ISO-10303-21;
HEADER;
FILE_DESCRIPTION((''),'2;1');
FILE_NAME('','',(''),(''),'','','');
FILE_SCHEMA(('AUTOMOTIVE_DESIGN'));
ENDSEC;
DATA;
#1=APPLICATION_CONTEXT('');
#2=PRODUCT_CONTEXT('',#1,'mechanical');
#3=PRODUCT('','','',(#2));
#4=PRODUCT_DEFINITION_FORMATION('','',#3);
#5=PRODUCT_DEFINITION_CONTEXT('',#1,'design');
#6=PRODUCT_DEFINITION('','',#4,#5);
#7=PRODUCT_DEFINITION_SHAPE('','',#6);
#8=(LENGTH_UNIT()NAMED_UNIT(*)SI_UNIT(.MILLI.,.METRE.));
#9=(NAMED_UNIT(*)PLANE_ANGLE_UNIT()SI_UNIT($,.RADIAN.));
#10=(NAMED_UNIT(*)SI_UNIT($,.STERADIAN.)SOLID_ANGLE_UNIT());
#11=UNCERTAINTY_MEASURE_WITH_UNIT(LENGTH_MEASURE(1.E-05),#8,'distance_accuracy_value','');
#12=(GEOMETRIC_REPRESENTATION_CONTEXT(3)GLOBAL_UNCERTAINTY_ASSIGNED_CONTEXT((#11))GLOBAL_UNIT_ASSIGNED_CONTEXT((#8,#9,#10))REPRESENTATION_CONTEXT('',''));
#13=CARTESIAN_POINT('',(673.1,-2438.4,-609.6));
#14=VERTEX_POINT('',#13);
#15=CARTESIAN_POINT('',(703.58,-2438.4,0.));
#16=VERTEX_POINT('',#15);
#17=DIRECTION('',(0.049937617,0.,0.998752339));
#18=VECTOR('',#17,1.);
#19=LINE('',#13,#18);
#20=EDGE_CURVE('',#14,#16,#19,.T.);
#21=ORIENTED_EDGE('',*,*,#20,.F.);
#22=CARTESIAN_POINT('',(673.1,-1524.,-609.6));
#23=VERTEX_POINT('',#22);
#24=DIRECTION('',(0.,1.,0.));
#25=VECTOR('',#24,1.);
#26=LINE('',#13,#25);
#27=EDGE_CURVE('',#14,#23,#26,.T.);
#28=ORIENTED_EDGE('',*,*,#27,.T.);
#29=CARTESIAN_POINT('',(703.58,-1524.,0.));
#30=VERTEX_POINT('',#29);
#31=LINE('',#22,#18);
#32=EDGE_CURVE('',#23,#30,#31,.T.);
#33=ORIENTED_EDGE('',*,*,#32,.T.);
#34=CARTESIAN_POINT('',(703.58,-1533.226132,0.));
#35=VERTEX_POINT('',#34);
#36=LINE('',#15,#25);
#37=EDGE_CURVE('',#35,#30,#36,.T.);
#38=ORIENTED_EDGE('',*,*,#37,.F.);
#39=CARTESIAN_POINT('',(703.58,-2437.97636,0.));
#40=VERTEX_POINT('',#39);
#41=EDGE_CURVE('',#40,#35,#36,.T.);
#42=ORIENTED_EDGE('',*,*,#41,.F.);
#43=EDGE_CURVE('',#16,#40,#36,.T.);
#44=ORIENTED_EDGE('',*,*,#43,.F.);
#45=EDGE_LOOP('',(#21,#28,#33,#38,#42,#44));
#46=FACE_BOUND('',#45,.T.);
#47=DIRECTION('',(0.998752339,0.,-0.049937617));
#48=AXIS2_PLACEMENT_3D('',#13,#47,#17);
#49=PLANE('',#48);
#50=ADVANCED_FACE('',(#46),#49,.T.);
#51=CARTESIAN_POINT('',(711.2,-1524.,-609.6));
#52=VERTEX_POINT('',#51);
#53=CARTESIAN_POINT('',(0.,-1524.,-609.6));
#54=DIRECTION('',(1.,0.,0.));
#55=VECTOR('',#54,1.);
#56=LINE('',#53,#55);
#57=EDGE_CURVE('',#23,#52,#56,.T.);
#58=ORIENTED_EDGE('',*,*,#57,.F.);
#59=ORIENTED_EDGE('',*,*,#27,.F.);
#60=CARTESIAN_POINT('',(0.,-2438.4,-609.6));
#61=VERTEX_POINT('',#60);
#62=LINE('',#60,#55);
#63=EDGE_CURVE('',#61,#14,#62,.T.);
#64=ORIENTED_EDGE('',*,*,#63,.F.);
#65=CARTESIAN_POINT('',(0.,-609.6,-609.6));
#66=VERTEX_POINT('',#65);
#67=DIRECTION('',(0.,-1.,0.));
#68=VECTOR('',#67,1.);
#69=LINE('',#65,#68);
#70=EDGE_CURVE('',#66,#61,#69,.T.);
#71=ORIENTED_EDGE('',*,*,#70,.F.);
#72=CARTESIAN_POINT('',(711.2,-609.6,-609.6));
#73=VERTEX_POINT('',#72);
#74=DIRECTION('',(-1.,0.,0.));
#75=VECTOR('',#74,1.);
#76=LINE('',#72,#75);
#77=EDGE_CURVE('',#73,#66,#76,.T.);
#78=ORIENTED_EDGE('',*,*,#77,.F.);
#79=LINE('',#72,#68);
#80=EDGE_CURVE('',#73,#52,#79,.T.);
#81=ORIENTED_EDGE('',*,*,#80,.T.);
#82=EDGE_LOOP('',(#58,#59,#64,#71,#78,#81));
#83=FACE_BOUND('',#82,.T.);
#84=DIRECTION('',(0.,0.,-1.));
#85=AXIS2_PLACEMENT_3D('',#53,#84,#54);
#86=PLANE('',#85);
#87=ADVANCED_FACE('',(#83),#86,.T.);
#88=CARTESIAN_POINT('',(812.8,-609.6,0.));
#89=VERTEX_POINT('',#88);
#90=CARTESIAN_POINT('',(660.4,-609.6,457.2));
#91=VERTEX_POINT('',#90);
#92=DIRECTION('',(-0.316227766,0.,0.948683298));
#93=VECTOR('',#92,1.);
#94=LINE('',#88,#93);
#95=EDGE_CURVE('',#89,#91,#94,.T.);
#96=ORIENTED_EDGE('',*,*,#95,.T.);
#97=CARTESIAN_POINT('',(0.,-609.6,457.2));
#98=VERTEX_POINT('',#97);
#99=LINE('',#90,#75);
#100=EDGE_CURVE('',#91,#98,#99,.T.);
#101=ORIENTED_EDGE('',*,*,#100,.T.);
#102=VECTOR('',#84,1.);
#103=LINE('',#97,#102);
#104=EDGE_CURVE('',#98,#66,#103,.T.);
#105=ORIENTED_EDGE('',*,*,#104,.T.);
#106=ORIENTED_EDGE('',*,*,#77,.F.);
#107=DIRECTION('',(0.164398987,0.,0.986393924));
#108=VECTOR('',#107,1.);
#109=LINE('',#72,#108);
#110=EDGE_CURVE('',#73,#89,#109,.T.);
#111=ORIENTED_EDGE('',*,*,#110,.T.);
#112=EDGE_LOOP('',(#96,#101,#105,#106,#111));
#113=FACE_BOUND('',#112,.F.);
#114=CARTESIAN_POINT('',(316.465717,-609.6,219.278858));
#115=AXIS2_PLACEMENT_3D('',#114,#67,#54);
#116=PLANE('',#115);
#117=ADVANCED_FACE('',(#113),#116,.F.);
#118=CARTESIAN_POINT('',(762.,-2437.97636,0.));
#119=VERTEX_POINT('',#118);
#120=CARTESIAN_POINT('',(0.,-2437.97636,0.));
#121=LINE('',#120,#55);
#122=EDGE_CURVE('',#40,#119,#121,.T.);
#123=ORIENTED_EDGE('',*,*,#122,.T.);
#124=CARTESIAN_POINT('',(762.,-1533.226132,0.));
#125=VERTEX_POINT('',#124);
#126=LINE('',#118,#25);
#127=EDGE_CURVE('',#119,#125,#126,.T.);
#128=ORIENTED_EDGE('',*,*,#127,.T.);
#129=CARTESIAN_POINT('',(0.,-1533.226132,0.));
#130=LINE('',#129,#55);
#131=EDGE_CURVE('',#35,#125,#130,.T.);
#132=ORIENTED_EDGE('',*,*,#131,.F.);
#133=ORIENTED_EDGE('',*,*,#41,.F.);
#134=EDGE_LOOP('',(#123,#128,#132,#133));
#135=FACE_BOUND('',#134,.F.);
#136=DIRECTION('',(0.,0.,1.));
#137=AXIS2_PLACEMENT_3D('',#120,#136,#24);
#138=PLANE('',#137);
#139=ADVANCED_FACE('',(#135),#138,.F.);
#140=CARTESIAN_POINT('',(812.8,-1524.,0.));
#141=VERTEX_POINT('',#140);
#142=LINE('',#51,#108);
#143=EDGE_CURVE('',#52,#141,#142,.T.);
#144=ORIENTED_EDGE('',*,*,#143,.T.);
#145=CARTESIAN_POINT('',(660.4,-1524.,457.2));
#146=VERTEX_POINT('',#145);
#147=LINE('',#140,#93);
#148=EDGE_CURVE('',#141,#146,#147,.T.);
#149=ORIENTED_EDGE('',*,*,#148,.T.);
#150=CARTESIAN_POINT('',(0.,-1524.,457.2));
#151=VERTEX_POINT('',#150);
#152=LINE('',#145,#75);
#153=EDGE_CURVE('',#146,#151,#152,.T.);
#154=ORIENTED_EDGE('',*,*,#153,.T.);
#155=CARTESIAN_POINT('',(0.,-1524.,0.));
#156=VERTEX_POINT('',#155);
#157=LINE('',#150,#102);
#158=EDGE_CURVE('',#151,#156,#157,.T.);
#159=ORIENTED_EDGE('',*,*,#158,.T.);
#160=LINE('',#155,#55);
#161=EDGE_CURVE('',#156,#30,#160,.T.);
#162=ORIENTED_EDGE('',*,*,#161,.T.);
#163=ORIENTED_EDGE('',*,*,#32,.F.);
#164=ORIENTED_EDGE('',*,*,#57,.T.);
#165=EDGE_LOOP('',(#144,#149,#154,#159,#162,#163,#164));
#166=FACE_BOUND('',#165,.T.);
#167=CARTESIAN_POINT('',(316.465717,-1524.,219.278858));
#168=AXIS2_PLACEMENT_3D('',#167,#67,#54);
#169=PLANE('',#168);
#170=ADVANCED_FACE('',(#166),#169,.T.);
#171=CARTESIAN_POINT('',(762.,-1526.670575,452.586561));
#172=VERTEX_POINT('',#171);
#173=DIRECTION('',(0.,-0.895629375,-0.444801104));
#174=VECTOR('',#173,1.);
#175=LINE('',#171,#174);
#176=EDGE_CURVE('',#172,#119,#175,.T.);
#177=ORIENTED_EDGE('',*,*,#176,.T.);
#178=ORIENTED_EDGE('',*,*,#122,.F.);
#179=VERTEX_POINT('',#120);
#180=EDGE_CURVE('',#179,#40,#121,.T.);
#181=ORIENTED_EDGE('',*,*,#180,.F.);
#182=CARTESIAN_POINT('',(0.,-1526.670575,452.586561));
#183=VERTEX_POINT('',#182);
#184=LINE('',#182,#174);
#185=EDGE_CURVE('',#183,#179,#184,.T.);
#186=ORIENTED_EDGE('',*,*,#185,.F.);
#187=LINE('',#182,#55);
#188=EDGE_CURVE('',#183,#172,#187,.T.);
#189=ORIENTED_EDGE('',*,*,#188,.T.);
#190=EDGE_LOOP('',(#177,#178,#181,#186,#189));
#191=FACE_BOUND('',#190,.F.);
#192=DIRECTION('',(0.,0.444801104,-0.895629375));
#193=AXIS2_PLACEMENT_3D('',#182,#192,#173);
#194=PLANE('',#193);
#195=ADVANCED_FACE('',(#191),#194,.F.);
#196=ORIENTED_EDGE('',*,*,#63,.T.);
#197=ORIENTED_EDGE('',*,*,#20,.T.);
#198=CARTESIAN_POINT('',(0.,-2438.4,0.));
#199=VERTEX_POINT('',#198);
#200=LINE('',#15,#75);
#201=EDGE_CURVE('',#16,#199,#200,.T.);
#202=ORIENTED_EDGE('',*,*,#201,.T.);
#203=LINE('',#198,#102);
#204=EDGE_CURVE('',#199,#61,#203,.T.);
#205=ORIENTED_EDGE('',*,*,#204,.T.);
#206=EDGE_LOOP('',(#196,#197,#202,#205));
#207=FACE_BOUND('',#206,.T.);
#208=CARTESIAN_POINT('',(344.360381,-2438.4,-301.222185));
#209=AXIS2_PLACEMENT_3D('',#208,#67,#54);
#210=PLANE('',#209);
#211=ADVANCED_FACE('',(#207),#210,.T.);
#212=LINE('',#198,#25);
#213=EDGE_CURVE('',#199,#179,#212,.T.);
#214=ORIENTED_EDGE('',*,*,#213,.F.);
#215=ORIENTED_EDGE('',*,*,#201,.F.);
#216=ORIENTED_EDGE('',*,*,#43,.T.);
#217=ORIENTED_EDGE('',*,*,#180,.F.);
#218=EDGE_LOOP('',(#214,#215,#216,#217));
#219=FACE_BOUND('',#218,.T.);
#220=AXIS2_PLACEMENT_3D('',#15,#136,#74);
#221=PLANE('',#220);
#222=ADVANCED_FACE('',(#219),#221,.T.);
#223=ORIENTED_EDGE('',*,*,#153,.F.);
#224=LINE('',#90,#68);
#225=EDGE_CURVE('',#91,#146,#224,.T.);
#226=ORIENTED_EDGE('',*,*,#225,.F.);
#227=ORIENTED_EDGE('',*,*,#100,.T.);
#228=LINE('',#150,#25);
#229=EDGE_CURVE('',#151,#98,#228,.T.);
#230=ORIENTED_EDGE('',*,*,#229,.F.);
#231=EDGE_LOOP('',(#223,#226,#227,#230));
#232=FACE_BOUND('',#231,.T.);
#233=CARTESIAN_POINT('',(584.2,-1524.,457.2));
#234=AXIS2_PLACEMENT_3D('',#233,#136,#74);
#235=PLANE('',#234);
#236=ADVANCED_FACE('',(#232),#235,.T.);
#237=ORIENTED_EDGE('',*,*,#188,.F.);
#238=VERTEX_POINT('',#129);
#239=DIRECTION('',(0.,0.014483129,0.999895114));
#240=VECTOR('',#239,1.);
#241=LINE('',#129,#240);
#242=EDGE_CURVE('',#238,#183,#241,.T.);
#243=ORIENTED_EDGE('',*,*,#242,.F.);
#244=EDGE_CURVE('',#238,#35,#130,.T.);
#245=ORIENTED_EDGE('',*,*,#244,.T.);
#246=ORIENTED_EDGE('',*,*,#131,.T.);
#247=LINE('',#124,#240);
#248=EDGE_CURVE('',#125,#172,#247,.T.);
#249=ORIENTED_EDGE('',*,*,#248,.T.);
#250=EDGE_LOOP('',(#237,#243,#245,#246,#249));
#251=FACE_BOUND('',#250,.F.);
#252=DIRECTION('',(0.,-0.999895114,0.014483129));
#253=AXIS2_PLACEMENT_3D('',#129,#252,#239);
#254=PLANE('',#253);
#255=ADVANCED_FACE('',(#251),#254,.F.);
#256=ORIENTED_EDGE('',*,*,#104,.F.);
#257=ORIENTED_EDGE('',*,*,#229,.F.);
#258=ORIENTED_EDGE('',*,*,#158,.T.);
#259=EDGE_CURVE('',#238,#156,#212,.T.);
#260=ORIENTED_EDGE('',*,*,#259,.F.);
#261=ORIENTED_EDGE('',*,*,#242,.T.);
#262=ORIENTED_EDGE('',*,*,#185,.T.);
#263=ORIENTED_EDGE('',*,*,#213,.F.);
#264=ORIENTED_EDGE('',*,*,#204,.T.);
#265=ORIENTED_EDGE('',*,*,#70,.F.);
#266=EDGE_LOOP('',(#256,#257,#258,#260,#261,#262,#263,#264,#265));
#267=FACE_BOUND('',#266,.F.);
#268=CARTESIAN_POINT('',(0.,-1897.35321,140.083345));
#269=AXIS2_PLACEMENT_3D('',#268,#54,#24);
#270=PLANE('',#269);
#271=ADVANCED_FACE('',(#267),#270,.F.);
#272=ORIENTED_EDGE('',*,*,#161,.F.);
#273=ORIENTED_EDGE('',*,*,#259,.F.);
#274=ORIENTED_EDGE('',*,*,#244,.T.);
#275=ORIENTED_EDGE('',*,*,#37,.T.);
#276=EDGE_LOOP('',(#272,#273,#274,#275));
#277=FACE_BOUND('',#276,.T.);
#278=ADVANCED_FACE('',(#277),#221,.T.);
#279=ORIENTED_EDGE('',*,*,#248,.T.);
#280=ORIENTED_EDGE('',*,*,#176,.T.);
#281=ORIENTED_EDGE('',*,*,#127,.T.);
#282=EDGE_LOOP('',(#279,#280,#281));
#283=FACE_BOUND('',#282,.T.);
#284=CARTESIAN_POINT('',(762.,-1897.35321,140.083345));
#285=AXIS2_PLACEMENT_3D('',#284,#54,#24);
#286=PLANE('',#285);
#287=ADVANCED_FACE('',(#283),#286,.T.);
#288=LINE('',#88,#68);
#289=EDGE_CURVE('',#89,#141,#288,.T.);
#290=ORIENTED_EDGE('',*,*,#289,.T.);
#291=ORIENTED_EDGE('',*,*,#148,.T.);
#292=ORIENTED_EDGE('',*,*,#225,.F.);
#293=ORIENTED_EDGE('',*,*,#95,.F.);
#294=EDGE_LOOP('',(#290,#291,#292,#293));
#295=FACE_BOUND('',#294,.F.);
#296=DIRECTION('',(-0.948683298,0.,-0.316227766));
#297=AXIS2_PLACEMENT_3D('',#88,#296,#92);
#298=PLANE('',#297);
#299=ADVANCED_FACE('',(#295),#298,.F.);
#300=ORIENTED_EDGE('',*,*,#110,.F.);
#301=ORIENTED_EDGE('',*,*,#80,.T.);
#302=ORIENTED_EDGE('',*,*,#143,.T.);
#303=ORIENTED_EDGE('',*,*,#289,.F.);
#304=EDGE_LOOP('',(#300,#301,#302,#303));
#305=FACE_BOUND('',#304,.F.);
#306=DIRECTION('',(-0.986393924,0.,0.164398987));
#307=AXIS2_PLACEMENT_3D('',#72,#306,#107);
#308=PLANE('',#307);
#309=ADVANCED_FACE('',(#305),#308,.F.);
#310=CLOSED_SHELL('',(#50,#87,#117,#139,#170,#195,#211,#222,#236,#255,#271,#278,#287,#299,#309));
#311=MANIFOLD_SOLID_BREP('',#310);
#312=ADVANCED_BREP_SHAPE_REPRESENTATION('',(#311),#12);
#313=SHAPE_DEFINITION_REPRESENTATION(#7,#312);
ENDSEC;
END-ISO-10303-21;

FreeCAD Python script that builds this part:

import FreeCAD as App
import Part
import Sketcher
from FreeCAD import Vector
Q = App.Units.Quantity


def add_polygon(sketch, points):
    """Adds a closed chain of lines whose ends are joined by coincident constraints."""
    first, n = sketch.GeometryCount, len(points)
    for a, b in zip(points, points[1:] + points[:1]):
        sketch.addGeometry(Part.LineSegment(App.Vector(*a, 0), App.Vector(*b, 0)), False)
    for i in range(n):
        sketch.addConstraint(Sketcher.Constraint("Coincident", first + i, 2, first + (i + 1) % n, 1))

doc = App.newDocument("Part")
body = doc.addObject("PartDesign::Body", "Body")

# Sketch on XZ plane
sketch1 = body.newObject("Sketcher::SketchObject", "Sketch")
sketch1.AttachmentSupport = (doc.getObject("XZ_Plane"), [""])
sketch1.MapMode = "FlatFace"
sketch1.AttachmentOffset = App.Placement(Vector(0, 0, 96 * 25.4), App.Rotation())
add_polygon(sketch1, [(673, -610), (704, 0), (0, 0), (0, -610)])  # lines 0-3
sketch1.addConstraint([
    Sketcher.Constraint("Horizontal", 1),
    Sketcher.Constraint("Vertical", 2),
    Sketcher.Constraint("Horizontal", 3),
    Sketcher.Constraint("Coincident", 1, 2, -1, 1),
    Sketcher.Constraint("DistanceY", 2, 2, 2, 1, Q("24 in")),
    Sketcher.Constraint("DistanceX", 1, 2, 1, 1, Q("27.7 in")),
    Sketcher.Constraint("DistanceX", 3, 1, 3, 2, Q("26.5 in")),
])
pad1 = body.newObject("PartDesign::Pad", "Pad")
pad1.Profile = sketch1
pad1.Length = Q("36 in")
pad1.Reversed = True

# Sketch on XZ plane
sketch2 = body.newObject("Sketcher::SketchObject", "Sketch001")
sketch2.AttachmentSupport = (doc.getObject("XZ_Plane"), [""])
sketch2.MapMode = "FlatFace"
sketch2.AttachmentOffset = App.Placement(Vector(0, 0, 60 * 25.4), App.Rotation())
add_polygon(sketch2, [(0, 457), (0, -610), (610, -610), (673, 0), (584, 457)])  # lines 0-4
sketch2.addConstraint([
    Sketcher.Constraint("Vertical", 0),
    Sketcher.Constraint("Horizontal", 1),
    Sketcher.Constraint("Horizontal", 4),
    Sketcher.Constraint("PointOnObject", 0, 2, -2),
    Sketcher.Constraint("PointOnObject", 2, 2, -1),
    Sketcher.Constraint("DistanceX", 1, 1, 1, 2, Q("24 in")),
    Sketcher.Constraint("DistanceX", 4, 2, 4, 1, Q("23 in")),
    Sketcher.Constraint("DistanceY", 0, 2, 0, 1, Q("42 in")),
    Sketcher.Constraint("DistanceY", 0, 2, -1, 1, Q("24 in")),
    Sketcher.Constraint("DistanceX", -1, 1, 2, 2, Q("26.5 in")),
])
pad2 = body.newObject("PartDesign::Pad", "Pad001")
pad2.Profile = sketch2
pad2.Length = Q("36 in")
pad2.Reversed = True

# Sketch on YZ plane
sketch3 = body.newObject("Sketcher::SketchObject", "Sketch002")
sketch3.AttachmentSupport = (doc.getObject("YZ_Plane"), [""])
sketch3.MapMode = "FlatFace"
add_polygon(sketch3, [(-1527, 453), (-2438, 0), (-1533, 0)])  # lines 0-2
sketch3.addConstraint([
    Sketcher.Constraint("Horizontal", 1),
    Sketcher.Constraint("PointOnObject", 0, 2, -1),
    Sketcher.Constraint("DistanceX", 1, 1, 1, 2, 904.750228),
    Sketcher.Constraint("DistanceX", 0, 2, -1, 1, 2437.97636),
    Sketcher.Constraint("DistanceY", -1, 1, 2, 2, 452.586561),
    Sketcher.Constraint("Distance", 0, 1017.503233),
])
pad3 = body.newObject("PartDesign::Pad", "Pad002")
pad3.Profile = sketch3
pad3.Length = Q("30 in")

# Sketch on XZ plane
sketch4 = body.newObject("Sketcher::SketchObject", "Sketch003")
sketch4.AttachmentSupport = (doc.getObject("XZ_Plane"), [""])
sketch4.MapMode = "FlatFace"
sketch4.AttachmentOffset = App.Placement(Vector(0, 0, 24 * 25.4), App.Rotation())
add_polygon(sketch4, [(0, 457), (0, -610), (711, -610), (813, 0), (660, 457)])  # lines 0-4
sketch4.addConstraint([
    Sketcher.Constraint("Vertical", 0),
    Sketcher.Constraint("Horizontal", 1),
    Sketcher.Constraint("Horizontal", 4),
    Sketcher.Constraint("PointOnObject", 0, 2, -2),
    Sketcher.Constraint("PointOnObject", 2, 2, -1),
    Sketcher.Constraint("DistanceX", 1, 1, 1, 2, Q("28 in")),
    Sketcher.Constraint("DistanceX", 4, 2, 4, 1, Q("26 in")),
    Sketcher.Constraint("DistanceY", 0, 2, 0, 1, Q("42 in")),
    Sketcher.Constraint("DistanceY", 0, 2, -1, 1, Q("24 in")),
    Sketcher.Constraint("DistanceX", -1, 1, 2, 2, Q("32 in")),
])
pad4 = body.newObject("PartDesign::Pad", "Pad003")
pad4.Profile = sketch4
pad4.Length = Q("36 in")

doc.recompute()
